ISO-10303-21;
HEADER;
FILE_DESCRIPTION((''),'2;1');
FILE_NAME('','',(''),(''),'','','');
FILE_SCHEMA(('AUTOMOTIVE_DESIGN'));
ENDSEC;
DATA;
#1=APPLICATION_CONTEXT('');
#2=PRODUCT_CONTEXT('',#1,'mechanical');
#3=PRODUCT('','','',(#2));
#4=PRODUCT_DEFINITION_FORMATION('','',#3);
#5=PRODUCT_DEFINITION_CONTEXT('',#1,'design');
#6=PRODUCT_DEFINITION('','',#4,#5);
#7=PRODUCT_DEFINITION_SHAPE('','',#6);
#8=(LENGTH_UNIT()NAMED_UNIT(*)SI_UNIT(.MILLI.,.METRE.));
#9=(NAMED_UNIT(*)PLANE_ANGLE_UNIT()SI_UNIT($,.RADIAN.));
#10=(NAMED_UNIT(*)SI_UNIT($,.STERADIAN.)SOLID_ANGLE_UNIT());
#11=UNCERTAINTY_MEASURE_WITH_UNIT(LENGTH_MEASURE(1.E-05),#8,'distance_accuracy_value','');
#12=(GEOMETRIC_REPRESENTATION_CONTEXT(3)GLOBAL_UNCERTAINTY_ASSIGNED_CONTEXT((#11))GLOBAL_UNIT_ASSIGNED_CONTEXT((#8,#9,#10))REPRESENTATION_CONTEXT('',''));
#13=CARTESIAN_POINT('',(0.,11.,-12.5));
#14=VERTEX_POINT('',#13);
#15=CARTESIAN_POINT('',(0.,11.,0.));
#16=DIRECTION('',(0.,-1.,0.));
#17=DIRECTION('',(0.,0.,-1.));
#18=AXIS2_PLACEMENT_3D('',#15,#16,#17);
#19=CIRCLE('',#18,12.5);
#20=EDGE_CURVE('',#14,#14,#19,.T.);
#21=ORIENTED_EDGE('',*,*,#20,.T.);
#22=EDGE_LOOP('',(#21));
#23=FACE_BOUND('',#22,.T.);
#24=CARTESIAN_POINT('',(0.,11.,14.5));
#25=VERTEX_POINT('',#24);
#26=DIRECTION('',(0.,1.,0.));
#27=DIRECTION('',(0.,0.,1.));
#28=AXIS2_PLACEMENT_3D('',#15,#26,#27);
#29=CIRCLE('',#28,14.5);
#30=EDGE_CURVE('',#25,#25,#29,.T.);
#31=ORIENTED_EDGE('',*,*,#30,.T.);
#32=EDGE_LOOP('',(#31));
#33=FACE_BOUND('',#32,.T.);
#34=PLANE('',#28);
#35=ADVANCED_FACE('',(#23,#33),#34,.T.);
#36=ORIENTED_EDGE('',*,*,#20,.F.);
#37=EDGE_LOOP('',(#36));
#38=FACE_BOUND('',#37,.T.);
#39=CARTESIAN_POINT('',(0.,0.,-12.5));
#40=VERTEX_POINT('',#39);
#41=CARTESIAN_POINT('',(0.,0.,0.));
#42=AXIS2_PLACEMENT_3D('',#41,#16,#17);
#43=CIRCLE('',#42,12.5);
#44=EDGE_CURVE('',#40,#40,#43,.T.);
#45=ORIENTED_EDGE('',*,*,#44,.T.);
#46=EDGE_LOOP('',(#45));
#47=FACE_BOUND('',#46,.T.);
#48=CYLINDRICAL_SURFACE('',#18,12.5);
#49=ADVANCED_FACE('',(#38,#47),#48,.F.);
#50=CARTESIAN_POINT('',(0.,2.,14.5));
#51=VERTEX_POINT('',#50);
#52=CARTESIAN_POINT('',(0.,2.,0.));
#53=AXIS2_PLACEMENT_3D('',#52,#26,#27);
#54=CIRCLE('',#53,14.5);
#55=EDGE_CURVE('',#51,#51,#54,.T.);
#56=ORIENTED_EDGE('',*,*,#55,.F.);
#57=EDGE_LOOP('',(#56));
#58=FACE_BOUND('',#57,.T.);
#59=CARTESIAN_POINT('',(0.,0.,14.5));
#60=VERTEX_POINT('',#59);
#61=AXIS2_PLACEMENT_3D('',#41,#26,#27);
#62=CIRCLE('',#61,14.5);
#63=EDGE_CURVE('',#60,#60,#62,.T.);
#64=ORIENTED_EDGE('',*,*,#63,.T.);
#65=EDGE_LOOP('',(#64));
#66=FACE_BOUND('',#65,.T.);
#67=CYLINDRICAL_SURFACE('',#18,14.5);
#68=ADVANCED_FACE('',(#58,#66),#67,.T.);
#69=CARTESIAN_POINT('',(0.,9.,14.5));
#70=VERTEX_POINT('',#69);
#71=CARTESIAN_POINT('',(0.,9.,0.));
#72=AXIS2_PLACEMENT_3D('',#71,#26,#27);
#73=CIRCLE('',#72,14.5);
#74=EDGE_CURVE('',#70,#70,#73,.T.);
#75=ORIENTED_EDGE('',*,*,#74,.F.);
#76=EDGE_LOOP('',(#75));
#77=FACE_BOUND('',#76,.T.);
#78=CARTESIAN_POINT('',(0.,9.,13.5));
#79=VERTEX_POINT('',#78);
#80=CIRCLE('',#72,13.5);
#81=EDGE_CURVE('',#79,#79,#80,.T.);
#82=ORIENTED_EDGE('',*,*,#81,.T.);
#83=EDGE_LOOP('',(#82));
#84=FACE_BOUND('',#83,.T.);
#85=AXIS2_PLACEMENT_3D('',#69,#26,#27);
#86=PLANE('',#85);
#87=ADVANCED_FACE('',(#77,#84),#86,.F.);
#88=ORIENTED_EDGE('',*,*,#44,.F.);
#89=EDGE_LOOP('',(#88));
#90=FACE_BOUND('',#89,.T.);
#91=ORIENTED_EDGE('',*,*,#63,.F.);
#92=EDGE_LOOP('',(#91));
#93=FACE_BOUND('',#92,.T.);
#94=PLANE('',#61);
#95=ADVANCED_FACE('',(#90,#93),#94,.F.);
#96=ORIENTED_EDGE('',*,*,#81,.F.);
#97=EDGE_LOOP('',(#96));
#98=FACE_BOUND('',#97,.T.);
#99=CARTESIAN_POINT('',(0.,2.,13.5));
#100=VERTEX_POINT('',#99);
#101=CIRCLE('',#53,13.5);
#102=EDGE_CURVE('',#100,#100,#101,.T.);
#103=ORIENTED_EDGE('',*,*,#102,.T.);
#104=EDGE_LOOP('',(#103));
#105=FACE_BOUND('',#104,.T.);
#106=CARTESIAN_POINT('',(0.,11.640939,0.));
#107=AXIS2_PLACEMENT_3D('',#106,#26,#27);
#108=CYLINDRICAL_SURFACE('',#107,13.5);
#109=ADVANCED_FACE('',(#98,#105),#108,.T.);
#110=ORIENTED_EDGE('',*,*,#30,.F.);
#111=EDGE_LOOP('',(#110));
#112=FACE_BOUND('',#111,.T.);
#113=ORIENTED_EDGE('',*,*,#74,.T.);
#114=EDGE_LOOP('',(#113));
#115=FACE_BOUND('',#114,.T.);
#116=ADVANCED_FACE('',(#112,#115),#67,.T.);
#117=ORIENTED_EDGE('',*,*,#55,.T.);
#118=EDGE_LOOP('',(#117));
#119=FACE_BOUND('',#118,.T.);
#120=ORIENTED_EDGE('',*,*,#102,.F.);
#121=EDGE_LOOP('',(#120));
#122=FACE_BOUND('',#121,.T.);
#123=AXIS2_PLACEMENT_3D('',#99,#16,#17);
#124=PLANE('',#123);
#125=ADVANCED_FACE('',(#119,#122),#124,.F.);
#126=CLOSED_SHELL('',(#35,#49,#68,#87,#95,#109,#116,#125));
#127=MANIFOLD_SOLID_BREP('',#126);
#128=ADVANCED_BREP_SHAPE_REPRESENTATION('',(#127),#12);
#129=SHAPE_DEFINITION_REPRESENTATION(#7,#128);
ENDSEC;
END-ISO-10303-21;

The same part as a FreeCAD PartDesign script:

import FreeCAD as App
import Part
import Sketcher

V = App.Vector
Q = App.Units.Quantity

doc = App.newDocument("Part")
params = doc.addObject("Spreadsheet::Sheet", "Params")
for row, (alias, value) in enumerate([
    ("sketch1_diameter", "29 mm"),
    ("pad1_length", "11 mm"),
    ("sketch2_diameter", "25 mm"),
    ("sketch3_width", "2 mm"),
    ("sketch3_width2", "7 mm"),
    ("sketch3_height", "1 mm"),
    ("groove_angle", "360 deg"),
], start=1):
    params.set(f"A{row}", alias)
    params.set(f"B{row}", "=" + value)
    params.setAlias(f"B{row}", alias)

body = doc.addObject("PartDesign::Body", "Body")

sketch1 = body.newObject("Sketcher::SketchObject", "Sketch")
sketch1.AttachmentSupport = (doc.getObject("XZ_Plane"), [""])
sketch1.MapMode = "FlatFace"
sketch1.addGeometry(Part.Circle(V(0, 0, 0), V(0, 0, 1), 14), False)
sketch1.addConstraint([
    Sketcher.Constraint("Coincident", 0, 3, -1, 1),
    Sketcher.Constraint("Diameter", 0, Q("29 mm")),
])
sketch1.setExpression("Constraints[1]", "Params.sketch1_diameter")
pad1 = body.newObject("PartDesign::Pad", "Pad")
pad1.Profile = sketch1
pad1.setExpression("Length", "Params.pad1_length")
pad1.Reversed = True

sketch2 = body.newObject("Sketcher::SketchObject", "Sketch001")
sketch2.AttachmentSupport = (doc.getObject("XZ_Plane"), [""])
sketch2.MapMode = "FlatFace"
sketch2.addGeometry(Part.Circle(V(0, 0, 0), V(0, 0, 1), 12), False)
sketch2.addConstraint([
    Sketcher.Constraint("Coincident", 0, 3, -1, 1),
    Sketcher.Constraint("Diameter", 0, Q("25 mm")),
])
sketch2.setExpression("Constraints[1]", "Params.sketch2_diameter")
pocket1 = body.newObject("PartDesign::Pocket", "Pocket")
pocket1.Profile = sketch2
pocket1.Type = "ThroughAll"

sketch3 = body.newObject("Sketcher::SketchObject", "Sketch002")
sketch3.AttachmentSupport = (doc.getObject("YZ_Plane"), [""])
sketch3.MapMode = "FlatFace"
sketch3.addGeometry([
    Part.LineSegment(V(9, 14.5, 0), V(11, 14.5, 0)),
    Part.LineSegment(V(11, 14.5, 0), V(6, 16.7, 0)),
    Part.LineSegment(V(6, 16.7, 0), V(0, 14.5, 0)),
    Part.LineSegment(V(0, 14.5, 0), V(2, 14.5, 0)),
    Part.LineSegment(V(2, 14.5, 0), V(2, 13.5, 0)),
    Part.LineSegment(V(2, 13.5, 0), V(9, 13.5, 0)),
    Part.LineSegment(V(9, 13.5, 0), V(9, 14.5, 0)),
], False)
sketch3.addConstraint([
    Sketcher.Constraint("Coincident", 0, 2, 1, 1),
    Sketcher.Constraint("Coincident", 1, 2, 2, 1),
    Sketcher.Constraint("Coincident", 2, 2, 3, 1),
    Sketcher.Constraint("Coincident", 3, 2, 4, 1),
    Sketcher.Constraint("Coincident", 4, 2, 5, 1),
    Sketcher.Constraint("Coincident", 5, 2, 6, 1),
    Sketcher.Constraint("Coincident", 6, 2, 0, 1),
    Sketcher.Constraint("Horizontal", 0),
    Sketcher.Constraint("Horizontal", 3),
    Sketcher.Constraint("Vertical", 4),
    Sketcher.Constraint("Horizontal", 5),
    Sketcher.Constraint("Vertical", 6),
    Sketcher.Constraint("PointOnObject", 2, 2, -2),
    Sketcher.Constraint("Horizontal", 0, 2, 2, 2),
    Sketcher.Constraint("Equal", 0, 3),
    Sketcher.Constraint("DistanceX", 0, 1, 0, 2, Q("2 mm")),
    Sketcher.Constraint("DistanceX", 5, 1, 5, 2, Q("7 mm")),
    Sketcher.Constraint("DistanceY", 4, 2, 4, 1, Q("1 mm")),
    Sketcher.Constraint("DistanceY", -1, 1, 0, 2, Q("14.5 mm")),
    Sketcher.Constraint("Distance", 1, Q("5.478357 mm")),
    Sketcher.Constraint("Distance", 2, Q("6.396775 mm")),
])
sketch3.setExpression("Constraints[15]", "Params.sketch3_width")
sketch3.setExpression("Constraints[16]", "Params.sketch3_width2")
sketch3.setExpression("Constraints[17]", "Params.sketch3_height")
groove = body.newObject("PartDesign::Groove", "Groove")
groove.Profile = sketch3
groove.ReferenceAxis = (sketch3, ["H_Axis"])
groove.setExpression("Angle", "Params.groove_angle")

doc.recompute()
